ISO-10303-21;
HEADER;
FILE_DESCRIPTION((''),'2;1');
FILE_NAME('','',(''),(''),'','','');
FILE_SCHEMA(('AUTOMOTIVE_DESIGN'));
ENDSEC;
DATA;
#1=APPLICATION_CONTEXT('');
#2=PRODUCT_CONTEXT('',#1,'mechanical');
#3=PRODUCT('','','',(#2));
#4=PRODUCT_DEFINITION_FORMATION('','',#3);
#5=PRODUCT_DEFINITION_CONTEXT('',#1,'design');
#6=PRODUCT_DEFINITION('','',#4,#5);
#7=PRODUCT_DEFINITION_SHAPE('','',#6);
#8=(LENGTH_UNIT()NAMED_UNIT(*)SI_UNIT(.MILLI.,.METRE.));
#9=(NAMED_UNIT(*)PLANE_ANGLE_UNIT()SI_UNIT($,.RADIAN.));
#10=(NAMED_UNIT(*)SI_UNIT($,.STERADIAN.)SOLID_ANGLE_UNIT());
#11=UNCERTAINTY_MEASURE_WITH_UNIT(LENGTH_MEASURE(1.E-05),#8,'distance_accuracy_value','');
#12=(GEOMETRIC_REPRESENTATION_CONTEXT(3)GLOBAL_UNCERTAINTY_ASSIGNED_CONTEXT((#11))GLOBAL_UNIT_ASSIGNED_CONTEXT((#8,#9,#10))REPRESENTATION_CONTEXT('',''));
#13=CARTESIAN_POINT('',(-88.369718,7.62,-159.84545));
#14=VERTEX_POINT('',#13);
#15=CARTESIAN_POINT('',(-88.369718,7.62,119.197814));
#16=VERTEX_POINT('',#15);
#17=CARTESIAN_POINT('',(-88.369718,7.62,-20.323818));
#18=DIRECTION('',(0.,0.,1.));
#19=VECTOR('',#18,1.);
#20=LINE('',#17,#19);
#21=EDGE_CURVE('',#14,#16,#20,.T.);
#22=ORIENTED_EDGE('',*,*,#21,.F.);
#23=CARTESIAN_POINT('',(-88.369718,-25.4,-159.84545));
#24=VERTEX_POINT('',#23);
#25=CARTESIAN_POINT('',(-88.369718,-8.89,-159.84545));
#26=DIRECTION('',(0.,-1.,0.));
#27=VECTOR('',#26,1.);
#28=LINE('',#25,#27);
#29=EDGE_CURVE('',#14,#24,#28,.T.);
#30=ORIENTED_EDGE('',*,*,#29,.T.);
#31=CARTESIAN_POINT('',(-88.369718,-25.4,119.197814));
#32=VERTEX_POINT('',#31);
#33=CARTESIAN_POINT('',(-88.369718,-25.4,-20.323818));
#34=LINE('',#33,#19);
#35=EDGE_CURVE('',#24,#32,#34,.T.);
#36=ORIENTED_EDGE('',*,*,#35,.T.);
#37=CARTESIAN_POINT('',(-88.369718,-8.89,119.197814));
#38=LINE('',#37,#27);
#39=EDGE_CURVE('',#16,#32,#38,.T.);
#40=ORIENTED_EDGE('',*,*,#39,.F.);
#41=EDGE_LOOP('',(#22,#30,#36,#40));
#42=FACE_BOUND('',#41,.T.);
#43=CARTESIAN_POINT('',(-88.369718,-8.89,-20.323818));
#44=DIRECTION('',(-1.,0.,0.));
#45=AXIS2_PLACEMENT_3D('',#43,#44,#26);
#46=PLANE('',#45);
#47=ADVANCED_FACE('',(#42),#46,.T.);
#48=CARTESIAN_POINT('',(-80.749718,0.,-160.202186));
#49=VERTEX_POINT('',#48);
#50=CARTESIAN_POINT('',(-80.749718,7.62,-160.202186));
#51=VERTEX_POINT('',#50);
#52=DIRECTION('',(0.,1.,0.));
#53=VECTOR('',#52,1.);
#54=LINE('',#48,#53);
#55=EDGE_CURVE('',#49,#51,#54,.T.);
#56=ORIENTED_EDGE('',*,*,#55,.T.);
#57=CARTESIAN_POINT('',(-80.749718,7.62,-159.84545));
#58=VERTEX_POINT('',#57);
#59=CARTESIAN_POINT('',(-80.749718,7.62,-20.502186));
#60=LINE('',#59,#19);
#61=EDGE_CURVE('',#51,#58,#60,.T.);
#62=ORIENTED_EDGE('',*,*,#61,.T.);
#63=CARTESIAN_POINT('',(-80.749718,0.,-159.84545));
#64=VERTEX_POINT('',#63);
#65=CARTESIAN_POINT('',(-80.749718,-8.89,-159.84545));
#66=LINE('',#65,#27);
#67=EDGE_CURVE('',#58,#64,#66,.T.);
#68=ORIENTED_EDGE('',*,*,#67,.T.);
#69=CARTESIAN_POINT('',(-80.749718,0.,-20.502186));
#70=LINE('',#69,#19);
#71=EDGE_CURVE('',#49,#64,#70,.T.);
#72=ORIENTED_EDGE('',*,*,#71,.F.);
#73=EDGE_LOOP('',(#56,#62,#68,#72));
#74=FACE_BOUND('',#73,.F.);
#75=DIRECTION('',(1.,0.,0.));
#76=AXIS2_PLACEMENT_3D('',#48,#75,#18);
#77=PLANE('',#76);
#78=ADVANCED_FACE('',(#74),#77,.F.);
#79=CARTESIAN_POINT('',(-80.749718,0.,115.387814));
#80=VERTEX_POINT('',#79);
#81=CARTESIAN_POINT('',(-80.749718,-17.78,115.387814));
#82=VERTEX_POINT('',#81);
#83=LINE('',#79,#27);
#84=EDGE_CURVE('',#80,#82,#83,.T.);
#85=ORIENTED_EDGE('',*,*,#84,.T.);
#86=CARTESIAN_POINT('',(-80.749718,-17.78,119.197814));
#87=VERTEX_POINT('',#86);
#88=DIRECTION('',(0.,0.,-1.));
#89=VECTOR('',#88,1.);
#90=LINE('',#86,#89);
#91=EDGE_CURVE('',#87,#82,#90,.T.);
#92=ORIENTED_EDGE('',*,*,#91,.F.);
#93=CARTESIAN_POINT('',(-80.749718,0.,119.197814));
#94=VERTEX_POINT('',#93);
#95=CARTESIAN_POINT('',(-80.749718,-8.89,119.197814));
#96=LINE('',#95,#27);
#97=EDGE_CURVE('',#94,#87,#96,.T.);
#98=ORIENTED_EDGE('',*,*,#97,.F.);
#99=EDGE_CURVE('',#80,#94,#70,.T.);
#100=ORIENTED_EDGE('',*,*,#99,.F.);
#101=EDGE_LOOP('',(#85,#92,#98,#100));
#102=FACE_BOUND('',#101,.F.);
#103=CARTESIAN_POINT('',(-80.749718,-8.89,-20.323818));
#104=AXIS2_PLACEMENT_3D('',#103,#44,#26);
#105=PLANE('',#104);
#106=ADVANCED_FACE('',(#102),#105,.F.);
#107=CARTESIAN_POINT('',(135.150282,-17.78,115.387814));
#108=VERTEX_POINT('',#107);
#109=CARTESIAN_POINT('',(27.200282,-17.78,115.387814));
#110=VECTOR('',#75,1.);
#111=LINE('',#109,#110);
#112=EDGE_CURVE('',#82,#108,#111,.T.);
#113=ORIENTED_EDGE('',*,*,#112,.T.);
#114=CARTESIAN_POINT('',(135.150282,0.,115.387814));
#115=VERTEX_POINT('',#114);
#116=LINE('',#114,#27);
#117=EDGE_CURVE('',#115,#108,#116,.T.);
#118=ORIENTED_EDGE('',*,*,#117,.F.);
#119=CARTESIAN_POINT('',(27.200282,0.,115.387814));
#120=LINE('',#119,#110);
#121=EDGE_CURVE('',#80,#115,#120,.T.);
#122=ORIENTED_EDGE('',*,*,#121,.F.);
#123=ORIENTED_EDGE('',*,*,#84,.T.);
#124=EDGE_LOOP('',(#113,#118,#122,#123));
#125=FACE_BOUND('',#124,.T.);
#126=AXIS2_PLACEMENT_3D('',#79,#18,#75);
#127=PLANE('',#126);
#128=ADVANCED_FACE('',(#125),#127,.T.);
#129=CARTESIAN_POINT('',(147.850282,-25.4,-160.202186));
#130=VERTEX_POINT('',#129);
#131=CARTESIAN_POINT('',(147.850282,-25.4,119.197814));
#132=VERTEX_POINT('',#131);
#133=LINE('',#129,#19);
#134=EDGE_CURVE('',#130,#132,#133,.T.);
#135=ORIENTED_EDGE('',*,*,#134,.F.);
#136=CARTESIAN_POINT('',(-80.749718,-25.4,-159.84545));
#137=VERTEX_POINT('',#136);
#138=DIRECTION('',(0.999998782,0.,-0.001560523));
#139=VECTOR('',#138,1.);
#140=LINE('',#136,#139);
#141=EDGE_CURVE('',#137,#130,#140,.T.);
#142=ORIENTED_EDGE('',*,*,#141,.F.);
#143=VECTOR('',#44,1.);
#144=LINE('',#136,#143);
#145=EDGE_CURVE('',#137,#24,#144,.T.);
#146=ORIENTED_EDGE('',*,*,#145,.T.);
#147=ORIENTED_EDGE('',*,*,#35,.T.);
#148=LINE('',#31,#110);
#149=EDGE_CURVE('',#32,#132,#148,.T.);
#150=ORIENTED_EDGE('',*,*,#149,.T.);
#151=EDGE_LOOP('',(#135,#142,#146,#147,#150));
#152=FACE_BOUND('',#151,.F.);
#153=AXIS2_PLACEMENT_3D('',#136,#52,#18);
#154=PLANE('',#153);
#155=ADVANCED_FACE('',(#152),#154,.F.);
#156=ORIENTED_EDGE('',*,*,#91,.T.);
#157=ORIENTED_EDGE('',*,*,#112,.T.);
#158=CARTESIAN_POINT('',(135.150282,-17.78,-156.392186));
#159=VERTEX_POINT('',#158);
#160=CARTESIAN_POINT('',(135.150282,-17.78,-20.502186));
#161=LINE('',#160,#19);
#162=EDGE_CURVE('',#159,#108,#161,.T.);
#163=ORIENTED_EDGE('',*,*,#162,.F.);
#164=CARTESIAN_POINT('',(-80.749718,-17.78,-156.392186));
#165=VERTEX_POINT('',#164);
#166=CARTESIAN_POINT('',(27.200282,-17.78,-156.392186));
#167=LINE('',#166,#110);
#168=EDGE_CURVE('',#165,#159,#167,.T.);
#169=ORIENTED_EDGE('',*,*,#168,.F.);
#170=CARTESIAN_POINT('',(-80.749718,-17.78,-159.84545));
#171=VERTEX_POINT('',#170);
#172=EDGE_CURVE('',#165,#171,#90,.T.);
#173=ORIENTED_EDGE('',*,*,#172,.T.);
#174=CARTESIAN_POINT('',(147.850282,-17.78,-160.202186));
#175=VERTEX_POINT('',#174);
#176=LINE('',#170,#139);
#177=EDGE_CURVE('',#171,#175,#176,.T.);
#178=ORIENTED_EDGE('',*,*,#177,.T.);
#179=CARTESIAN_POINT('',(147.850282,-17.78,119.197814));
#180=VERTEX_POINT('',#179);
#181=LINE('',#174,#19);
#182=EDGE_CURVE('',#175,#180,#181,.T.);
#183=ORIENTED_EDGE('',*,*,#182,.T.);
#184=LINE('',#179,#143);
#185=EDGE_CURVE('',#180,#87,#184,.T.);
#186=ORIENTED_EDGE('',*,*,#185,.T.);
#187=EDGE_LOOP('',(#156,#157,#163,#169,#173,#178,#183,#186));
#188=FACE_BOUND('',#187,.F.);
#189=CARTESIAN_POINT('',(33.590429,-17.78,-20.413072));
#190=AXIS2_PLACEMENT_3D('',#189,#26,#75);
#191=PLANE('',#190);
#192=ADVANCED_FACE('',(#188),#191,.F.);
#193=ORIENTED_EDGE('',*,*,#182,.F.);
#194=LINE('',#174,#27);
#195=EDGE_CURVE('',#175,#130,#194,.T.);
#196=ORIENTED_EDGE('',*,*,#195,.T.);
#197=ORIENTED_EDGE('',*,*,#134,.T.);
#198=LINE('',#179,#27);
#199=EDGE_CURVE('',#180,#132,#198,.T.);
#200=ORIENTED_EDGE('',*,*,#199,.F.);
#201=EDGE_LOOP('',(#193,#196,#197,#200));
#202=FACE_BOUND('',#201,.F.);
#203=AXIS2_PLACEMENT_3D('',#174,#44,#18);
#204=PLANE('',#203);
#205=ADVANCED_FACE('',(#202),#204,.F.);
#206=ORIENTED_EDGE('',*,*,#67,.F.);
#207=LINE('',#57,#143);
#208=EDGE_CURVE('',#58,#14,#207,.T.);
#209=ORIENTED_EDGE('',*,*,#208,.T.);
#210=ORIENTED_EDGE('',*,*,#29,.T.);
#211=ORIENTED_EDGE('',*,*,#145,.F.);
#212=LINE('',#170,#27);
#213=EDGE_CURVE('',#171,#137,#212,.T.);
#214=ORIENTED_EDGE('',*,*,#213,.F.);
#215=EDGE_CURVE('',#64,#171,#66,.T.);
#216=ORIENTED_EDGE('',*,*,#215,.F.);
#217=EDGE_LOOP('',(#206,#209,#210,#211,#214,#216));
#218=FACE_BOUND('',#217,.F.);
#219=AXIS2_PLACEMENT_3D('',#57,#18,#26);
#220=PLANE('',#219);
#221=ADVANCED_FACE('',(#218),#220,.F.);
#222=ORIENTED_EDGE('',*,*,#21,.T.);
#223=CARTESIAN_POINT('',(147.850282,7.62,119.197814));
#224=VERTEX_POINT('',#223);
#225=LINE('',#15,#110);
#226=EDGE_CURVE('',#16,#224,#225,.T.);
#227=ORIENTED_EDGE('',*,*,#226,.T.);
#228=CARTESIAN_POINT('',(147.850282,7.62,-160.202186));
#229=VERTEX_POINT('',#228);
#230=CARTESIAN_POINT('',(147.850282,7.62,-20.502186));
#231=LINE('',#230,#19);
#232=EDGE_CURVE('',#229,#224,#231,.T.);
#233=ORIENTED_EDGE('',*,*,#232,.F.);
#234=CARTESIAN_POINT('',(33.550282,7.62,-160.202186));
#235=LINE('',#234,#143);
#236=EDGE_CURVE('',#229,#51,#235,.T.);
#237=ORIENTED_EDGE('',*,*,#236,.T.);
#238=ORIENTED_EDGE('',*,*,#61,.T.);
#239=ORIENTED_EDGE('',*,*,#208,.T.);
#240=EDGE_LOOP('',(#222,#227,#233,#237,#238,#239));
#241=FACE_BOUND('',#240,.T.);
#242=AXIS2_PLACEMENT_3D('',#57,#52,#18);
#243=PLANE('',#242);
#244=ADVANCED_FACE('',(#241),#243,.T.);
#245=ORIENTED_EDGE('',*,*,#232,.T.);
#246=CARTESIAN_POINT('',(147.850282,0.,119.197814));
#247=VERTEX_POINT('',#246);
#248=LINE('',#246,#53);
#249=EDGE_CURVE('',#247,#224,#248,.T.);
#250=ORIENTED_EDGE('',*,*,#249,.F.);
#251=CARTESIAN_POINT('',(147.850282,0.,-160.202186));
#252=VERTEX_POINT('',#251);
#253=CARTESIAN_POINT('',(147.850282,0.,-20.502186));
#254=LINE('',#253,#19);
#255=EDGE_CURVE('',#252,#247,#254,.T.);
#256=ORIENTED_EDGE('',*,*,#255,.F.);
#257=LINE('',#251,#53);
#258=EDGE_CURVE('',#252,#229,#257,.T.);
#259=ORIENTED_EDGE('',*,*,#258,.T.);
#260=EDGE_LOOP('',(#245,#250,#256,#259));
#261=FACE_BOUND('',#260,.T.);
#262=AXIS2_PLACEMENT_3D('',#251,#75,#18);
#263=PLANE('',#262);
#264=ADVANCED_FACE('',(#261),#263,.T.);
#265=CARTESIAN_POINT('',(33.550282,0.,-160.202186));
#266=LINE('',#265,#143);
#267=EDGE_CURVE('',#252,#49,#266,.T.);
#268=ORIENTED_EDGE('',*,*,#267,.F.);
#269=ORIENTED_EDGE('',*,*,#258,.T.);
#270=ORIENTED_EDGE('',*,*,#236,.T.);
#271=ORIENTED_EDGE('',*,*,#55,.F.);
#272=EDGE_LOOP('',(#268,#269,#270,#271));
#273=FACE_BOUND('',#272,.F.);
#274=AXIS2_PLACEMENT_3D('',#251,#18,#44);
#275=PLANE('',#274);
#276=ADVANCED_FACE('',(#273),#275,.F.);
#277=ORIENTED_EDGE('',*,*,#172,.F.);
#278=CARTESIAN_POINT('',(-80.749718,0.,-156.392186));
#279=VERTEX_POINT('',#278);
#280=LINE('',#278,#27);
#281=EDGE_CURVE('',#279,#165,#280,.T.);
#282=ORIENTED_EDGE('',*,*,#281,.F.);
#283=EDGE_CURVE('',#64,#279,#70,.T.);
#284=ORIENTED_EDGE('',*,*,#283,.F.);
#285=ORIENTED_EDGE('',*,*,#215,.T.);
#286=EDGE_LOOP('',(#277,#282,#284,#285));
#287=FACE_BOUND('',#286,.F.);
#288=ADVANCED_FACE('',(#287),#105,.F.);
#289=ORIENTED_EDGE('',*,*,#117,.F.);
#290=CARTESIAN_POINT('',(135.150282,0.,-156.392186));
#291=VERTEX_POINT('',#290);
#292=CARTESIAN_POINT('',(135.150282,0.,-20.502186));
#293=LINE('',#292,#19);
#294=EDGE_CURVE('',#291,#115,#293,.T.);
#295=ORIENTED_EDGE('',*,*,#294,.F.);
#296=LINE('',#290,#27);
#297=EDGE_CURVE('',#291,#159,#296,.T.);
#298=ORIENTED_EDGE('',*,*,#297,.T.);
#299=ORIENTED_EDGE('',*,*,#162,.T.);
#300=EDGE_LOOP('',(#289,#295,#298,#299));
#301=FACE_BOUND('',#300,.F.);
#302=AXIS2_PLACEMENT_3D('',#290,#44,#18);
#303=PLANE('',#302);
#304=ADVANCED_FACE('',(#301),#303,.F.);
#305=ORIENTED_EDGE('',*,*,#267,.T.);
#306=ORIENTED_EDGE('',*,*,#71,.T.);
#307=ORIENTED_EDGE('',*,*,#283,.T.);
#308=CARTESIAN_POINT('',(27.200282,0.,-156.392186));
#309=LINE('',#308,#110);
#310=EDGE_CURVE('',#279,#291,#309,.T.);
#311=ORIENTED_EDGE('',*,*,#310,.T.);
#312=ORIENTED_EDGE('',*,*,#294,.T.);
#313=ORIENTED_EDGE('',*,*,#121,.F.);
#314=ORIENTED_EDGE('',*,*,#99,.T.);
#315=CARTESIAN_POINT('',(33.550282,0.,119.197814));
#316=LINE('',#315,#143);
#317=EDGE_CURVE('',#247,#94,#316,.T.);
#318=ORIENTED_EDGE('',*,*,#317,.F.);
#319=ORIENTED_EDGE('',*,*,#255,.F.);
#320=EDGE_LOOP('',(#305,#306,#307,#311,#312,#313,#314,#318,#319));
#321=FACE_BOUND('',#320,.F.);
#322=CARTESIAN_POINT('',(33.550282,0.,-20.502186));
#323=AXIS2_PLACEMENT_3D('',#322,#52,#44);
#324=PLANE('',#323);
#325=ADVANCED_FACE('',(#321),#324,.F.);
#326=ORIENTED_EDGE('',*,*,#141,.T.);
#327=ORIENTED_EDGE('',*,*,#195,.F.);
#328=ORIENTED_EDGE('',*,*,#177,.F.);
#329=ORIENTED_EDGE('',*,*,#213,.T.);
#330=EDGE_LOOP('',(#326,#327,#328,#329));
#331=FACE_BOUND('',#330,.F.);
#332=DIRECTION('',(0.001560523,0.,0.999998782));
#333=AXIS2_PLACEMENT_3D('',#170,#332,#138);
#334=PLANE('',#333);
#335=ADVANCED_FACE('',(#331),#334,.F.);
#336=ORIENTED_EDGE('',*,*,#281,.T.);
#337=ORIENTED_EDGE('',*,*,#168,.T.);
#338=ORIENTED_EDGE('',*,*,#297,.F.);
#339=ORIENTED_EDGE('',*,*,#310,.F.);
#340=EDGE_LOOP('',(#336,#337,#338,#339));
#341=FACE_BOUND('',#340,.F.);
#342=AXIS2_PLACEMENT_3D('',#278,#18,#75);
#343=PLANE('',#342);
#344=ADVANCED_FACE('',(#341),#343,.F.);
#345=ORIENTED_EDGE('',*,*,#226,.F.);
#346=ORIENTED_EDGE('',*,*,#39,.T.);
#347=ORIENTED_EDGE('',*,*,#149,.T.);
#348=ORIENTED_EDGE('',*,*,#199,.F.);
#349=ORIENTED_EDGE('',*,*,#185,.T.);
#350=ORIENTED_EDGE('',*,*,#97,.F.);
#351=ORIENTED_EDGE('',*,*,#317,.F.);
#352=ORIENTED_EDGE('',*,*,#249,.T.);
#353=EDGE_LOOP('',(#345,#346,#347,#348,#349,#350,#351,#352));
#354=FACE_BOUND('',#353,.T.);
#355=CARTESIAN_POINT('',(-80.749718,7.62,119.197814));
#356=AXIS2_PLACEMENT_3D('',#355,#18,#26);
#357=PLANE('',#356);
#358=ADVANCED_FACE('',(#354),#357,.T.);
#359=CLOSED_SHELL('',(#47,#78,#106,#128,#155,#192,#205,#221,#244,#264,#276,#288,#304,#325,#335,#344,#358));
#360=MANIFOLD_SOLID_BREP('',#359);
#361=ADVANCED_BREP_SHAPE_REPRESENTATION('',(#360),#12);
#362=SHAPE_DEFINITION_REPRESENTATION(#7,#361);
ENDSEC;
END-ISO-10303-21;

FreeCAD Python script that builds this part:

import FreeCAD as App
import Part
import Sketcher

V = App.Vector
Q = App.Units.Quantity


def add_polygon(sketch, points):
    """Adds a closed chain of lines whose ends are joined by coincident constraints."""
    first, n = sketch.GeometryCount, len(points)
    for a, b in zip(points, points[1:] + points[:1]):
        sketch.addGeometry(Part.LineSegment(App.Vector(*a, 0), App.Vector(*b, 0)), False)
    for i in range(n):
        sketch.addConstraint(Sketcher.Constraint("Coincident", first + i, 2, first + (i + 1) % n, 1))

doc = App.newDocument("Part")
body = doc.addObject("PartDesign::Body", "Body")

# Sketch on XZ plane
sketch1 = body.newObject("Sketcher::SketchObject", "Sketch")
sketch1.AttachmentSupport = (doc.getObject("XZ_Plane"), [""])
sketch1.MapMode = "FlatFace"
add_polygon(sketch1, [(-80.749718, 115.387814), (-80.749718, -156.392186), (135.150282, -156.392186), (135.150282, 115.387814)])  # lines 0-3
sketch1.addConstraint([
    Sketcher.Constraint("Vertical", 0),
    Sketcher.Constraint("Horizontal", 1),
    Sketcher.Constraint("Vertical", 2),
    Sketcher.Constraint("Horizontal", 3),
    Sketcher.Constraint("DistanceX", 1, 1, 1, 2, Q("8.5 in")),
    Sketcher.Constraint("DistanceY", 0, 2, 0, 1, Q("10.7 in")),
    Sketcher.Constraint("DistanceX", 0, 2, -1, 1, Q("80.749718 mm")),
    Sketcher.Constraint("DistanceY", 0, 2, -1, 1, Q("156.392186 mm")),
])
pad1 = body.newObject("PartDesign::Pad", "Pad")
pad1.Profile = sketch1
pad1.Length = Q("0.7 in")

# Sketch on XZ plane
sketch2 = body.newObject("Sketcher::SketchObject", "Sketch001")
sketch2.AttachmentSupport = (doc.getObject("XZ_Plane"), [""])
sketch2.MapMode = "FlatFace"
sketch2.AttachmentOffset = App.Placement(V(0, 0, 0.7 * 25.4), App.Rotation())
add_polygon(sketch2, [(147.850282, -160.202186), (147.850282, 119.197814), (-80.749718, 119.197814), (-80.749718, -159.84545)])  # lines 0-3
sketch2.addConstraint([
    Sketcher.Constraint("Vertical", 0),
    Sketcher.Constraint("Horizontal", 1),
    Sketcher.Constraint("Vertical", 2),
    Sketcher.Constraint("DistanceX", 1, 2, 1, 1, Q("9 in")),
    Sketcher.Constraint("DistanceY", 0, 1, 0, 2, Q("11 in")),
    Sketcher.Constraint("DistanceY", 2, 2, 2, 1, Q("279.043264 mm")),
    Sketcher.Constraint("DistanceX", -1, 1, 0, 2, Q("147.850282 mm")),
    Sketcher.Constraint("DistanceY", 2, 2, -1, 1, Q("159.84545 mm")),
])
pad2 = body.newObject("PartDesign::Pad", "Pad001")
pad2.Profile = sketch2
pad2.Length = Q("0.3 in")

# Sketch on XZ plane
sketch3 = body.newObject("Sketcher::SketchObject", "Sketch002")
sketch3.AttachmentSupport = (doc.getObject("XZ_Plane"), [""])
sketch3.MapMode = "FlatFace"
add_polygon(sketch3, [(147.850282, 119.197814), (147.850282, -160.202186), (-80.749718, -160.202186), (-80.749718, 119.197814)])  # lines 0-3
sketch3.addConstraint([
    Sketcher.Constraint("Vertical", 0),
    Sketcher.Constraint("Horizontal", 1),
    Sketcher.Constraint("Vertical", 2),
    Sketcher.Constraint("Horizontal", 3),
    Sketcher.Constraint("DistanceX", 1, 2, 1, 1, Q("9 in")),
    Sketcher.Constraint("DistanceY", 0, 2, 0, 1, Q("11 in")),
    Sketcher.Constraint("DistanceX", -1, 1, 0, 2, Q("147.850282 mm")),
    Sketcher.Constraint("DistanceY", 0, 2, -1, 1, Q("160.202186 mm")),
])
pad3 = body.newObject("PartDesign::Pad", "Pad002")
pad3.Profile = sketch3
pad3.Length = Q("0.3 in")
pad3.Reversed = True

# Sketch on YZ plane
sketch4 = body.newObject("Sketcher::SketchObject", "Sketch003")
sketch4.AttachmentSupport = (doc.getObject("YZ_Plane"), [""])
sketch4.MapMode = "FlatFace"
sketch4.AttachmentOffset = App.Placement(V(0, 0, -80.749718), App.Rotation())
add_polygon(sketch4, [(7.62, 119.197814), (7.62, -159.84545), (-25.4, -159.84545), (-25.4, 119.197814)])  # lines 0-3
sketch4.addConstraint([
    Sketcher.Constraint("Vertical", 0),
    Sketcher.Constraint("Horizontal", 1),
    Sketcher.Constraint("Vertical", 2),
    Sketcher.Constraint("Horizontal", 3),
    Sketcher.Constraint("DistanceX", 1, 2, 1, 1, Q("1.3 in")),
    Sketcher.Constraint("DistanceX", 1, 2, -1, 1, Q("1 in")),
    Sketcher.Constraint("DistanceY", 0, 2, 0, 1, Q("279.043264 mm")),
    Sketcher.Constraint("DistanceY", 0, 2, -1, 1, Q("159.84545 mm")),
])
pad4 = body.newObject("PartDesign::Pad", "Pad003")
pad4.Profile = sketch4
pad4.Length = Q("0.3 in")
pad4.Reversed = True

doc.recompute()
